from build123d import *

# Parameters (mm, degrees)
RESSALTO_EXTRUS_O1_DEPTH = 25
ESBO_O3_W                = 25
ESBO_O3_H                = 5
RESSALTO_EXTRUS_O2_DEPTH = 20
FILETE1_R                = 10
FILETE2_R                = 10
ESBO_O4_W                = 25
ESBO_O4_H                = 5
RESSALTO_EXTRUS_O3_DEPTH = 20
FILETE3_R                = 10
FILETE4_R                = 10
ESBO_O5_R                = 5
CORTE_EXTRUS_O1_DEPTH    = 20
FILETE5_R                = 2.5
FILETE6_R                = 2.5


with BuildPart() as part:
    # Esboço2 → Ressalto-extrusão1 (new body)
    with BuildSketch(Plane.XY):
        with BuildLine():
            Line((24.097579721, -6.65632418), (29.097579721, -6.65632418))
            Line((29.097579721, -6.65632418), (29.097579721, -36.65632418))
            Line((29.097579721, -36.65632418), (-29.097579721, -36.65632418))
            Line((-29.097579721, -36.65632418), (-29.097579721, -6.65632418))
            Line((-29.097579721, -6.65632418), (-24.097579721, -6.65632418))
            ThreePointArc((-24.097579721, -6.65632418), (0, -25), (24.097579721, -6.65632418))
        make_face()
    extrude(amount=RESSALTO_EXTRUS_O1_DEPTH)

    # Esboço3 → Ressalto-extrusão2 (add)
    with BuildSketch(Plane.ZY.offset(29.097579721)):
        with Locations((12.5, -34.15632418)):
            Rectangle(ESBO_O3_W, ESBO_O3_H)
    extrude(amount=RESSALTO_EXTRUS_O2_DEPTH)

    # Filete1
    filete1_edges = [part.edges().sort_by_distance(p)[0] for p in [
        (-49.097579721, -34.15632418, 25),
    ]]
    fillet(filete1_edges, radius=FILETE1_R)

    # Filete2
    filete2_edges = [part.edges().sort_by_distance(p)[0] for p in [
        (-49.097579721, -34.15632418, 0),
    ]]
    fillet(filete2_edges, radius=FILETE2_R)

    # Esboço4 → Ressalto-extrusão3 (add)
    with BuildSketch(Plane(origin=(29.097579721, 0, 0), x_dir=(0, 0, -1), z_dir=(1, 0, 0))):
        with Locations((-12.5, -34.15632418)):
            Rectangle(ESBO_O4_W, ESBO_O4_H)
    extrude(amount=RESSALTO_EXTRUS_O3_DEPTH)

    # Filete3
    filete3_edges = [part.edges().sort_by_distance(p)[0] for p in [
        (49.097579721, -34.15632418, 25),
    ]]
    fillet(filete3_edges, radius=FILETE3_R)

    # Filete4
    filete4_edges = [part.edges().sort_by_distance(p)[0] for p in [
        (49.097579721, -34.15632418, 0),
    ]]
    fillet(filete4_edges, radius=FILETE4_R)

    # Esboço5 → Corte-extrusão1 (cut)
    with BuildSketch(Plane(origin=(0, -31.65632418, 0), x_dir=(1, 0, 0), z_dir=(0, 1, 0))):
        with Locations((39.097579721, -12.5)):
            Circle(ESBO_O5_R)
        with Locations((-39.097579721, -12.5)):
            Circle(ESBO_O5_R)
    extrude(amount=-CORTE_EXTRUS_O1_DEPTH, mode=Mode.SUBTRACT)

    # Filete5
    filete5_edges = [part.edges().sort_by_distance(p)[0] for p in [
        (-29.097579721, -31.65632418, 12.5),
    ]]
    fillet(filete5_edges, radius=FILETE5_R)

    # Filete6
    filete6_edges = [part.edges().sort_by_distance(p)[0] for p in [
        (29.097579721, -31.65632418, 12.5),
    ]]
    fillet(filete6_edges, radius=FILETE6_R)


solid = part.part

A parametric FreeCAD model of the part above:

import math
import FreeCAD as App
import Part
import Sketcher
from FreeCAD import Vector


def edges_at(feature, points):
    """Names of the edges that pass closest to the given points."""
    edges = feature.Shape.Edges
    near = lambda p: min(range(len(edges)), key=lambda i: edges[i].distToShape(Part.Vertex(*p))[0])
    return sorted({f"Edge{near(p) + 1}" for p in points})


def add_polygon(sketch, points):
    """Adds a closed chain of lines whose ends are joined by coincident constraints."""
    first, n = sketch.GeometryCount, len(points)
    for a, b in zip(points, points[1:] + points[:1]):
        sketch.addGeometry(Part.LineSegment(App.Vector(*a, 0), App.Vector(*b, 0)), False)
    for i in range(n):
        sketch.addConstraint(Sketcher.Constraint("Coincident", first + i, 2, first + (i + 1) % n, 1))

doc = App.newDocument("Part")
body = doc.addObject("PartDesign::Body", "Body")

sketch1 = doc.addObject("Sketcher::SketchObject", "Sketch")
body.addObject(sketch1)
sketch1.AttachmentSupport = (doc.XY_Plane, [""])
sketch1.MapMode = "FlatFace"
sketch1.addGeometry([
    Part.LineSegment(Vector(29.09758, -6.656324, 0), Vector(24.09758, -6.656324, 0)),
    Part.ArcOfCircle(Part.Circle(Vector(0, 0, 0), Vector(0, 0, 1), 25), math.radians(-164.558582), math.radians(-15.441418)),
    Part.LineSegment(Vector(-24.09758, -6.656324, 0), Vector(-29.09758, -6.656324, 0)),
    Part.LineSegment(Vector(-29.09758, -6.656324, 0), Vector(-29.09758, -36.656324, 0)),
    Part.LineSegment(Vector(-29.09758, -36.656324, 0), Vector(29.09758, -36.656324, 0)),
    Part.LineSegment(Vector(29.09758, -36.656324, 0), Vector(29.09758, -6.656324, 0)),
], False)
sketch1.addConstraint([
    Sketcher.Constraint("Coincident", 0, 2, 1, 2),
    Sketcher.Constraint("Coincident", 1, 1, 2, 1),
    Sketcher.Constraint("Coincident", 2, 2, 3, 1),
    Sketcher.Constraint("Coincident", 3, 2, 4, 1),
    Sketcher.Constraint("Coincident", 4, 2, 5, 1),
    Sketcher.Constraint("Coincident", 5, 2, 0, 1),
    Sketcher.Constraint("Horizontal", 0),
    Sketcher.Constraint("Horizontal", 2),
    Sketcher.Constraint("Vertical", 3),
    Sketcher.Constraint("Horizontal", 4),
    Sketcher.Constraint("Vertical", 5),
    Sketcher.Constraint("Coincident", 1, 3, -1, 1),
    Sketcher.Constraint("Symmetric", 2, 2, 5, 2, -2),
    Sketcher.Constraint("Radius", 1, 25.0),
    Sketcher.Constraint("DistanceX", 0, 2, 0, 1, 5.0),
    Sketcher.Constraint("DistanceY", 3, 2, 3, 1, 30.0),
    Sketcher.Constraint("DistanceX", 4, 1, 4, 2, 58.195159),
])
pad1 = doc.addObject("PartDesign::Pad", "Pad")
body.addObject(pad1)
pad1.Profile = sketch1
pad1.Length = 25

sketch2 = doc.addObject("Sketcher::SketchObject", "Sketch001")
body.addObject(sketch2)
sketch2.AttachmentSupport = (doc.YZ_Plane, [""])
sketch2.MapMode = "FlatFace"
sketch2.AttachmentOffset = App.Placement(Vector(0, 0, -29.09758), App.Rotation())
add_polygon(sketch2, [(-31.656324, 0), (-36.656324, 0), (-36.656324, 25), (-31.656324, 25)])
sketch2.addConstraint([
    Sketcher.Constraint("Horizontal", 0),
    Sketcher.Constraint("Vertical", 1),
    Sketcher.Constraint("Horizontal", 2),
    Sketcher.Constraint("Vertical", 3),
    Sketcher.Constraint("PointOnObject", 0, 2, -1),
    Sketcher.Constraint("DistanceX", 0, 2, 0, 1, 5.0),
    Sketcher.Constraint("DistanceY", 1, 1, 1, 2, 25.0),
    Sketcher.Constraint("DistanceX", 0, 2, -1, 1, 36.656324),
])
pad2 = doc.addObject("PartDesign::Pad", "Pad001")
body.addObject(pad2)
pad2.Profile = sketch2
pad2.Length = 20
pad2.Reversed = True
doc.recompute()

fillet = doc.addObject("PartDesign::Fillet", "Fillet")
body.addObject(fillet)
fillet.Base = (pad2, edges_at(pad2, [(-49.098, -34.156, 25)]))
fillet.Radius = 10
doc.recompute()

fillet2 = doc.addObject("PartDesign::Fillet", "Fillet001")
body.addObject(fillet2)
fillet2.Base = (fillet, edges_at(fillet, [(-49.098, -34.156, 0)]))
fillet2.Radius = 10

sketch3 = doc.addObject("Sketcher::SketchObject", "Sketch002")
body.addObject(sketch3)
sketch3.AttachmentSupport = (doc.YZ_Plane, [""])
sketch3.MapMode = "FlatFace"
sketch3.AttachmentOffset = App.Placement(Vector(0, 0, 29.09758), App.Rotation())
add_polygon(sketch3, [(-31.656324, 25), (-36.656324, 25), (-36.656324, 0), (-31.656324, 0)])
sketch3.addConstraint([
    Sketcher.Constraint("Horizontal", 0),
    Sketcher.Constraint("Vertical", 1),
    Sketcher.Constraint("Horizontal", 2),
    Sketcher.Constraint("Vertical", 3),
    Sketcher.Constraint("PointOnObject", 1, 2, -1),
    Sketcher.Constraint("DistanceX", 0, 2, 0, 1, 5.0),
    Sketcher.Constraint("DistanceY", 1, 2, 1, 1, 25.0),
    Sketcher.Constraint("DistanceX", 0, 2, -1, 1, 36.656324),
])
pad3 = doc.addObject("PartDesign::Pad", "Pad002")
body.addObject(pad3)
pad3.Profile = sketch3
pad3.Length = 20
doc.recompute()

fillet3 = doc.addObject("PartDesign::Fillet", "Fillet002")
body.addObject(fillet3)
fillet3.Base = (pad3, edges_at(pad3, [(49.098, -34.156, 25)]))
fillet3.Radius = 10
doc.recompute()

fillet4 = doc.addObject("PartDesign::Fillet", "Fillet003")
body.addObject(fillet4)
fillet4.Base = (fillet3, edges_at(fillet3, [(49.098, -34.156, 0)]))
fillet4.Radius = 10

sketch4 = doc.addObject("Sketcher::SketchObject", "Sketch003")
body.addObject(sketch4)
sketch4.AttachmentSupport = (doc.XZ_Plane, [""])
sketch4.MapMode = "FlatFace"
sketch4.AttachmentOffset = App.Placement(Vector(0, 0, 31.656324), App.Rotation())
sketch4.addGeometry([
    Part.Circle(Vector(39.09758, 12.5, 0), Vector(0, 0, 1), 5),
    Part.Circle(Vector(-39.09758, 12.5, 0), Vector(0, 0, 1), 5),
], False)
sketch4.addConstraint([
    Sketcher.Constraint("Equal", 0, 1),
    Sketcher.Constraint("Symmetric", 0, 3, 1, 3, -2),
    Sketcher.Constraint("Diameter", 0, 10.0),
    Sketcher.Constraint("DistanceY", -1, 1, 0, 3, 12.5),
    Sketcher.Constraint("DistanceX", -1, 1, 0, 3, 39.09758),
])
pocket1 = doc.addObject("PartDesign::Pocket", "Pocket")
body.addObject(pocket1)
pocket1.Profile = sketch4
pocket1.Length = 20
pocket1.Reversed = True
doc.recompute()

fillet5 = doc.addObject("PartDesign::Fillet", "Fillet004")
body.addObject(fillet5)
fillet5.Base = (pocket1, edges_at(pocket1, [(-29.098, -31.656, 12.5)]))
fillet5.Radius = 2.5
doc.recompute()

fillet6 = doc.addObject("PartDesign::Fillet", "Fillet005")
body.addObject(fillet6)
fillet6.Base = (fillet5, edges_at(fillet5, [(29.098, -31.656, 12.5)]))
fillet6.Radius = 2.5

doc.recompute()
